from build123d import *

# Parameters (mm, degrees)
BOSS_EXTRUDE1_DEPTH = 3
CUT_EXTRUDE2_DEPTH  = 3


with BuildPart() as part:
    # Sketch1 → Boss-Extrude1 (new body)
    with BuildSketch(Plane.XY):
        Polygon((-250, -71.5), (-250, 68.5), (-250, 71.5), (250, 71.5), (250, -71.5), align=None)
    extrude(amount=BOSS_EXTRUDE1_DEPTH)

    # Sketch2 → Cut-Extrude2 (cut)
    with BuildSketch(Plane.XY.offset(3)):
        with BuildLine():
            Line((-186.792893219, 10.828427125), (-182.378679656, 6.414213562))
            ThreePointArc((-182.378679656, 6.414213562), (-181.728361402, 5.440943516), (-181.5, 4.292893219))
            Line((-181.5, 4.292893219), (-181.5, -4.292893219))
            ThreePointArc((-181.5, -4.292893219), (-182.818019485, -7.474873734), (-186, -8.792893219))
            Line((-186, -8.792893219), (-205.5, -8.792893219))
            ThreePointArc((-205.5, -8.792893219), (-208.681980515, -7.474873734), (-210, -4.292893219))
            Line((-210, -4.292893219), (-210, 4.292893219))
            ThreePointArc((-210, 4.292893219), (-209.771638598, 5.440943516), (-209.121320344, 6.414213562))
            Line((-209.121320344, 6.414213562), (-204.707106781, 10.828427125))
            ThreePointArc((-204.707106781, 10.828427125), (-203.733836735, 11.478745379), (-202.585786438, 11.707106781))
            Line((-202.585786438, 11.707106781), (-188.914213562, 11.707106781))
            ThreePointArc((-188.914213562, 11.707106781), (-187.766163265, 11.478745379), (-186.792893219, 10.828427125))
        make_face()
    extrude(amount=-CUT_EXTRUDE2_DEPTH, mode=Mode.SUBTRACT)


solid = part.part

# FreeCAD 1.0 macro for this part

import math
import FreeCAD as App
import Part
import Sketcher
Q = App.Units.Quantity

doc = App.newDocument("Part")
body = doc.addObject("PartDesign::Body", "Body")

# Sketch on XY plane
sketch1 = body.newObject("Sketcher::SketchObject", "Sketch")
sketch1.AttachmentSupport = (doc.getObject("XY_Plane"), [""])
sketch1.MapMode = "FlatFace"
sketch1.addGeometry([
    Part.LineSegment(App.Vector(-250, 71.5, 0), App.Vector(-250, -71.5, 0)),
    Part.LineSegment(App.Vector(-250, -71.5, 0), App.Vector(250, -71.5, 0)),
    Part.LineSegment(App.Vector(250, -71.5, 0), App.Vector(250, 71.5, 0)),
    Part.LineSegment(App.Vector(250, 71.5, 0), App.Vector(-250, 71.5, 0)),
], False)
sketch1.addConstraint([
    Sketcher.Constraint("Coincident", 0, 2, 1, 1),
    Sketcher.Constraint("Coincident", 1, 2, 2, 1),
    Sketcher.Constraint("Coincident", 2, 2, 3, 1),
    Sketcher.Constraint("Coincident", 3, 2, 0, 1),
    Sketcher.Constraint("Vertical", 0),
    Sketcher.Constraint("Horizontal", 1),
    Sketcher.Constraint("Vertical", 2),
    Sketcher.Constraint("Horizontal", 3),
    Sketcher.Constraint("Symmetric", 0, 2, 2, 2, -1, 1),
    Sketcher.Constraint("DistanceX", 1, 1, 1, 2, Q("500 mm")),
    Sketcher.Constraint("DistanceY", 0, 2, 0, 1, Q("143 mm")),
])
pad1 = body.newObject("PartDesign::Pad", "Pad")
pad1.Profile = sketch1
pad1.Length = 3

# Sketch on XY plane
sketch2 = body.newObject("Sketcher::SketchObject", "Sketch001")
sketch2.AttachmentSupport = (doc.getObject("XY_Plane"), [""])
sketch2.MapMode = "FlatFace"
sketch2.AttachmentOffset = App.Placement(App.Vector(0, 0, 3), App.Rotation())
sketch2.addGeometry([
    Part.LineSegment(App.Vector(-182.37868, 6.414214, 0), App.Vector(-186.792893, 10.828427, 0)),  # 0
    Part.ArcOfCircle(Part.Circle(App.Vector(-188.914214, 8.707107, 0), App.Vector(0, 0, 1), 3), math.radians(45), math.radians(90)),  # 1
    Part.LineSegment(App.Vector(-188.914214, 11.707107, 0), App.Vector(-202.585786, 11.707107, 0)),  # 2
    Part.ArcOfCircle(Part.Circle(App.Vector(-202.585786, 8.707107, 0), App.Vector(0, 0, 1), 3), math.radians(90), math.radians(135)),  # 3
    Part.LineSegment(App.Vector(-204.707107, 10.828427, 0), App.Vector(-209.12132, 6.414214, 0)),  # 4
    Part.ArcOfCircle(Part.Circle(App.Vector(-207, 4.292893, 0), App.Vector(0, 0, 1), 3), math.radians(135), math.radians(180)),  # 5
    Part.LineSegment(App.Vector(-210, 4.292893, 0), App.Vector(-210, -4.292893, 0)),  # 6
    Part.ArcOfCircle(Part.Circle(App.Vector(-205.5, -4.292893, 0), App.Vector(0, 0, 1), 4.5), math.radians(-180), math.radians(-90)),  # 7
    Part.LineSegment(App.Vector(-205.5, -8.792893, 0), App.Vector(-186, -8.792893, 0)),  # 8
    Part.ArcOfCircle(Part.Circle(App.Vector(-186, -4.292893, 0), App.Vector(0, 0, 1), 4.5), math.radians(-90), math.radians(0)),  # 9
    Part.LineSegment(App.Vector(-181.5, -4.292893, 0), App.Vector(-181.5, 4.292893, 0)),  # 10
    Part.ArcOfCircle(Part.Circle(App.Vector(-184.5, 4.292893, 0), App.Vector(0, 0, 1), 3), math.radians(0), math.radians(45)),  # 11
], False)
sketch2.addConstraint([
    Sketcher.Constraint("Tangent", 0, 2, 1, 1),
    Sketcher.Constraint("Tangent", 1, 2, 2, 1),
    Sketcher.Constraint("Tangent", 2, 2, 3, 1),
    Sketcher.Constraint("Tangent", 3, 2, 4, 1),
    Sketcher.Constraint("Tangent", 4, 2, 5, 1),
    Sketcher.Constraint("Tangent", 5, 2, 6, 1),
    Sketcher.Constraint("Tangent", 6, 2, 7, 1),
    Sketcher.Constraint("Tangent", 7, 2, 8, 1),
    Sketcher.Constraint("Tangent", 8, 2, 9, 1),
    Sketcher.Constraint("Tangent", 9, 2, 10, 1),
    Sketcher.Constraint("Tangent", 10, 2, 11, 1),
    Sketcher.Constraint("Tangent", 11, 2, 0, 1),
    Sketcher.Constraint("Horizontal", 2),
    Sketcher.Constraint("Vertical", 6),
    Sketcher.Constraint("Horizontal", 8),
    Sketcher.Constraint("Vertical", 10),
    Sketcher.Constraint("Equal", 1, 3),
    Sketcher.Constraint("Equal", 3, 5),
    Sketcher.Constraint("Equal", 7, 9),
    Sketcher.Constraint("Equal", 5, 11),
    Sketcher.Constraint("Perpendicular", 0, 4),
    Sketcher.Constraint("Horizontal", 5, 3, 11, 3),
    Sketcher.Constraint("Horizontal", 0, 2, 3, 2),
    Sketcher.Constraint("Radius", 1, Q("3 mm")),
    Sketcher.Constraint("Radius", 7, Q("4.5 mm")),
    Sketcher.Constraint("DistanceX", 8, 1, 8, 2, Q("19.5 mm")),
    Sketcher.Constraint("DistanceX", 5, 3, -1, 1, Q("207 mm")),
    Sketcher.Constraint("DistanceY", 7, 3, 3, 3, Q("13 mm")),
    Sketcher.Constraint("Distance", 0, Q("6.242641 mm")),
    Sketcher.Constraint("DistanceY", -1, 1, 1, 3, Q("8.707107 mm")),
])
pocket1 = body.newObject("PartDesign::Pocket", "Pocket")
pocket1.Profile = sketch2
pocket1.Length = 3

doc.recompute()
